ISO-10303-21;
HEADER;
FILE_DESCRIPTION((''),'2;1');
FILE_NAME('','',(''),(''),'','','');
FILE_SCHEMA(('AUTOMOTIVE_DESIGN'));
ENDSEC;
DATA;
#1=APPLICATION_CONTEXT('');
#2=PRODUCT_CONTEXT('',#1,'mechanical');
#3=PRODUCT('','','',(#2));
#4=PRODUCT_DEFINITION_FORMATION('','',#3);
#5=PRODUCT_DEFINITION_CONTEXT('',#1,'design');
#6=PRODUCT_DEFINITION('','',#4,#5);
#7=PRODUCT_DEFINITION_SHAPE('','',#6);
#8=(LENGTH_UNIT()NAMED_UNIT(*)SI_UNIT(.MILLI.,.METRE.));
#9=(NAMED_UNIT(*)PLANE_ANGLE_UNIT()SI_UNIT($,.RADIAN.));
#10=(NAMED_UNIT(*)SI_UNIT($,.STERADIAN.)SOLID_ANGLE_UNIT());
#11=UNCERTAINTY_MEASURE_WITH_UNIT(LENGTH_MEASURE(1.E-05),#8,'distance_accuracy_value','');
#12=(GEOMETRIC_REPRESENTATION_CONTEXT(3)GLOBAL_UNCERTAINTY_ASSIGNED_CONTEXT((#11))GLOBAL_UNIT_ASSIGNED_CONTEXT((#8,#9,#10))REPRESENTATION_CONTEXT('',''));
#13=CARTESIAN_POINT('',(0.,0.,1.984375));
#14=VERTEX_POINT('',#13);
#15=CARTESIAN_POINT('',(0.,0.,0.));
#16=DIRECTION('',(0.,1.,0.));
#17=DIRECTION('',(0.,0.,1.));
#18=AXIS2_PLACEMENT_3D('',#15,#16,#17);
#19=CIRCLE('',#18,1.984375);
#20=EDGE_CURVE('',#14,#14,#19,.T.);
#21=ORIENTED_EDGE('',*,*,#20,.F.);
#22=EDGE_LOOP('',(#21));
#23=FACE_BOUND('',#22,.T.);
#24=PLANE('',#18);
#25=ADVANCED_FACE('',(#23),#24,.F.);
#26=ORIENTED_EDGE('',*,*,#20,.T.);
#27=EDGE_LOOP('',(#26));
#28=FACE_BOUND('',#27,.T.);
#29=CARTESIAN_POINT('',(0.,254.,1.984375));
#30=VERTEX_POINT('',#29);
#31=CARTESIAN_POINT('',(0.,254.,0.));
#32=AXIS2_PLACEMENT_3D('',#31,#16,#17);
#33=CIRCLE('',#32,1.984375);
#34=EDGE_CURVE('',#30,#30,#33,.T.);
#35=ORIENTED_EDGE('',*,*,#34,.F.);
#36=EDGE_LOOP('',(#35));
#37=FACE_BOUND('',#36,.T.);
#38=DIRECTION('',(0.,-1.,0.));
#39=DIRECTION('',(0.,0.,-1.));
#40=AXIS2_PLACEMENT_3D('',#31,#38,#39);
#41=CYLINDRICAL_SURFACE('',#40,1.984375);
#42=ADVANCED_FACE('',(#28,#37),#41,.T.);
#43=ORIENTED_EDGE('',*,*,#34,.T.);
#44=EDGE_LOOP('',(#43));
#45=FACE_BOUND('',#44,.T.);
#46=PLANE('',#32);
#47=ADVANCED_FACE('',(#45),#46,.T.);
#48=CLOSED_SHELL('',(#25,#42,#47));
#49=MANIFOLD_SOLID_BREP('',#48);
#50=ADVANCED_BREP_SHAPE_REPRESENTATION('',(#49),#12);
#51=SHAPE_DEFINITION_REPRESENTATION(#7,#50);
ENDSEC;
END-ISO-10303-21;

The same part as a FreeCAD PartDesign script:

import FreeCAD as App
import Part
import Sketcher
from FreeCAD import Vector
Q = App.Units.Quantity

doc = App.newDocument("Part")
body = doc.addObject("PartDesign::Body", "Body")

# Sketch on XZ plane
sketch1 = body.newObject("Sketcher::SketchObject", "Sketch")
sketch1.AttachmentSupport = (doc.getObject("XZ_Plane"), [""])
sketch1.MapMode = "FlatFace"
sketch1.addGeometry(Part.Circle(Vector(0, 0, 0), Vector(0, 0, 1), 2), False)
sketch1.addConstraint(Sketcher.Constraint("Coincident", 0, 3, -1, 1))
sketch1.addConstraint(Sketcher.Constraint("Diameter", 0, Q("0.15625 in")))
pad1 = body.newObject("PartDesign::Pad", "Pad")
pad1.Profile = sketch1
pad1.Length = Q("10 in")
pad1.Reversed = True

doc.recompute()
